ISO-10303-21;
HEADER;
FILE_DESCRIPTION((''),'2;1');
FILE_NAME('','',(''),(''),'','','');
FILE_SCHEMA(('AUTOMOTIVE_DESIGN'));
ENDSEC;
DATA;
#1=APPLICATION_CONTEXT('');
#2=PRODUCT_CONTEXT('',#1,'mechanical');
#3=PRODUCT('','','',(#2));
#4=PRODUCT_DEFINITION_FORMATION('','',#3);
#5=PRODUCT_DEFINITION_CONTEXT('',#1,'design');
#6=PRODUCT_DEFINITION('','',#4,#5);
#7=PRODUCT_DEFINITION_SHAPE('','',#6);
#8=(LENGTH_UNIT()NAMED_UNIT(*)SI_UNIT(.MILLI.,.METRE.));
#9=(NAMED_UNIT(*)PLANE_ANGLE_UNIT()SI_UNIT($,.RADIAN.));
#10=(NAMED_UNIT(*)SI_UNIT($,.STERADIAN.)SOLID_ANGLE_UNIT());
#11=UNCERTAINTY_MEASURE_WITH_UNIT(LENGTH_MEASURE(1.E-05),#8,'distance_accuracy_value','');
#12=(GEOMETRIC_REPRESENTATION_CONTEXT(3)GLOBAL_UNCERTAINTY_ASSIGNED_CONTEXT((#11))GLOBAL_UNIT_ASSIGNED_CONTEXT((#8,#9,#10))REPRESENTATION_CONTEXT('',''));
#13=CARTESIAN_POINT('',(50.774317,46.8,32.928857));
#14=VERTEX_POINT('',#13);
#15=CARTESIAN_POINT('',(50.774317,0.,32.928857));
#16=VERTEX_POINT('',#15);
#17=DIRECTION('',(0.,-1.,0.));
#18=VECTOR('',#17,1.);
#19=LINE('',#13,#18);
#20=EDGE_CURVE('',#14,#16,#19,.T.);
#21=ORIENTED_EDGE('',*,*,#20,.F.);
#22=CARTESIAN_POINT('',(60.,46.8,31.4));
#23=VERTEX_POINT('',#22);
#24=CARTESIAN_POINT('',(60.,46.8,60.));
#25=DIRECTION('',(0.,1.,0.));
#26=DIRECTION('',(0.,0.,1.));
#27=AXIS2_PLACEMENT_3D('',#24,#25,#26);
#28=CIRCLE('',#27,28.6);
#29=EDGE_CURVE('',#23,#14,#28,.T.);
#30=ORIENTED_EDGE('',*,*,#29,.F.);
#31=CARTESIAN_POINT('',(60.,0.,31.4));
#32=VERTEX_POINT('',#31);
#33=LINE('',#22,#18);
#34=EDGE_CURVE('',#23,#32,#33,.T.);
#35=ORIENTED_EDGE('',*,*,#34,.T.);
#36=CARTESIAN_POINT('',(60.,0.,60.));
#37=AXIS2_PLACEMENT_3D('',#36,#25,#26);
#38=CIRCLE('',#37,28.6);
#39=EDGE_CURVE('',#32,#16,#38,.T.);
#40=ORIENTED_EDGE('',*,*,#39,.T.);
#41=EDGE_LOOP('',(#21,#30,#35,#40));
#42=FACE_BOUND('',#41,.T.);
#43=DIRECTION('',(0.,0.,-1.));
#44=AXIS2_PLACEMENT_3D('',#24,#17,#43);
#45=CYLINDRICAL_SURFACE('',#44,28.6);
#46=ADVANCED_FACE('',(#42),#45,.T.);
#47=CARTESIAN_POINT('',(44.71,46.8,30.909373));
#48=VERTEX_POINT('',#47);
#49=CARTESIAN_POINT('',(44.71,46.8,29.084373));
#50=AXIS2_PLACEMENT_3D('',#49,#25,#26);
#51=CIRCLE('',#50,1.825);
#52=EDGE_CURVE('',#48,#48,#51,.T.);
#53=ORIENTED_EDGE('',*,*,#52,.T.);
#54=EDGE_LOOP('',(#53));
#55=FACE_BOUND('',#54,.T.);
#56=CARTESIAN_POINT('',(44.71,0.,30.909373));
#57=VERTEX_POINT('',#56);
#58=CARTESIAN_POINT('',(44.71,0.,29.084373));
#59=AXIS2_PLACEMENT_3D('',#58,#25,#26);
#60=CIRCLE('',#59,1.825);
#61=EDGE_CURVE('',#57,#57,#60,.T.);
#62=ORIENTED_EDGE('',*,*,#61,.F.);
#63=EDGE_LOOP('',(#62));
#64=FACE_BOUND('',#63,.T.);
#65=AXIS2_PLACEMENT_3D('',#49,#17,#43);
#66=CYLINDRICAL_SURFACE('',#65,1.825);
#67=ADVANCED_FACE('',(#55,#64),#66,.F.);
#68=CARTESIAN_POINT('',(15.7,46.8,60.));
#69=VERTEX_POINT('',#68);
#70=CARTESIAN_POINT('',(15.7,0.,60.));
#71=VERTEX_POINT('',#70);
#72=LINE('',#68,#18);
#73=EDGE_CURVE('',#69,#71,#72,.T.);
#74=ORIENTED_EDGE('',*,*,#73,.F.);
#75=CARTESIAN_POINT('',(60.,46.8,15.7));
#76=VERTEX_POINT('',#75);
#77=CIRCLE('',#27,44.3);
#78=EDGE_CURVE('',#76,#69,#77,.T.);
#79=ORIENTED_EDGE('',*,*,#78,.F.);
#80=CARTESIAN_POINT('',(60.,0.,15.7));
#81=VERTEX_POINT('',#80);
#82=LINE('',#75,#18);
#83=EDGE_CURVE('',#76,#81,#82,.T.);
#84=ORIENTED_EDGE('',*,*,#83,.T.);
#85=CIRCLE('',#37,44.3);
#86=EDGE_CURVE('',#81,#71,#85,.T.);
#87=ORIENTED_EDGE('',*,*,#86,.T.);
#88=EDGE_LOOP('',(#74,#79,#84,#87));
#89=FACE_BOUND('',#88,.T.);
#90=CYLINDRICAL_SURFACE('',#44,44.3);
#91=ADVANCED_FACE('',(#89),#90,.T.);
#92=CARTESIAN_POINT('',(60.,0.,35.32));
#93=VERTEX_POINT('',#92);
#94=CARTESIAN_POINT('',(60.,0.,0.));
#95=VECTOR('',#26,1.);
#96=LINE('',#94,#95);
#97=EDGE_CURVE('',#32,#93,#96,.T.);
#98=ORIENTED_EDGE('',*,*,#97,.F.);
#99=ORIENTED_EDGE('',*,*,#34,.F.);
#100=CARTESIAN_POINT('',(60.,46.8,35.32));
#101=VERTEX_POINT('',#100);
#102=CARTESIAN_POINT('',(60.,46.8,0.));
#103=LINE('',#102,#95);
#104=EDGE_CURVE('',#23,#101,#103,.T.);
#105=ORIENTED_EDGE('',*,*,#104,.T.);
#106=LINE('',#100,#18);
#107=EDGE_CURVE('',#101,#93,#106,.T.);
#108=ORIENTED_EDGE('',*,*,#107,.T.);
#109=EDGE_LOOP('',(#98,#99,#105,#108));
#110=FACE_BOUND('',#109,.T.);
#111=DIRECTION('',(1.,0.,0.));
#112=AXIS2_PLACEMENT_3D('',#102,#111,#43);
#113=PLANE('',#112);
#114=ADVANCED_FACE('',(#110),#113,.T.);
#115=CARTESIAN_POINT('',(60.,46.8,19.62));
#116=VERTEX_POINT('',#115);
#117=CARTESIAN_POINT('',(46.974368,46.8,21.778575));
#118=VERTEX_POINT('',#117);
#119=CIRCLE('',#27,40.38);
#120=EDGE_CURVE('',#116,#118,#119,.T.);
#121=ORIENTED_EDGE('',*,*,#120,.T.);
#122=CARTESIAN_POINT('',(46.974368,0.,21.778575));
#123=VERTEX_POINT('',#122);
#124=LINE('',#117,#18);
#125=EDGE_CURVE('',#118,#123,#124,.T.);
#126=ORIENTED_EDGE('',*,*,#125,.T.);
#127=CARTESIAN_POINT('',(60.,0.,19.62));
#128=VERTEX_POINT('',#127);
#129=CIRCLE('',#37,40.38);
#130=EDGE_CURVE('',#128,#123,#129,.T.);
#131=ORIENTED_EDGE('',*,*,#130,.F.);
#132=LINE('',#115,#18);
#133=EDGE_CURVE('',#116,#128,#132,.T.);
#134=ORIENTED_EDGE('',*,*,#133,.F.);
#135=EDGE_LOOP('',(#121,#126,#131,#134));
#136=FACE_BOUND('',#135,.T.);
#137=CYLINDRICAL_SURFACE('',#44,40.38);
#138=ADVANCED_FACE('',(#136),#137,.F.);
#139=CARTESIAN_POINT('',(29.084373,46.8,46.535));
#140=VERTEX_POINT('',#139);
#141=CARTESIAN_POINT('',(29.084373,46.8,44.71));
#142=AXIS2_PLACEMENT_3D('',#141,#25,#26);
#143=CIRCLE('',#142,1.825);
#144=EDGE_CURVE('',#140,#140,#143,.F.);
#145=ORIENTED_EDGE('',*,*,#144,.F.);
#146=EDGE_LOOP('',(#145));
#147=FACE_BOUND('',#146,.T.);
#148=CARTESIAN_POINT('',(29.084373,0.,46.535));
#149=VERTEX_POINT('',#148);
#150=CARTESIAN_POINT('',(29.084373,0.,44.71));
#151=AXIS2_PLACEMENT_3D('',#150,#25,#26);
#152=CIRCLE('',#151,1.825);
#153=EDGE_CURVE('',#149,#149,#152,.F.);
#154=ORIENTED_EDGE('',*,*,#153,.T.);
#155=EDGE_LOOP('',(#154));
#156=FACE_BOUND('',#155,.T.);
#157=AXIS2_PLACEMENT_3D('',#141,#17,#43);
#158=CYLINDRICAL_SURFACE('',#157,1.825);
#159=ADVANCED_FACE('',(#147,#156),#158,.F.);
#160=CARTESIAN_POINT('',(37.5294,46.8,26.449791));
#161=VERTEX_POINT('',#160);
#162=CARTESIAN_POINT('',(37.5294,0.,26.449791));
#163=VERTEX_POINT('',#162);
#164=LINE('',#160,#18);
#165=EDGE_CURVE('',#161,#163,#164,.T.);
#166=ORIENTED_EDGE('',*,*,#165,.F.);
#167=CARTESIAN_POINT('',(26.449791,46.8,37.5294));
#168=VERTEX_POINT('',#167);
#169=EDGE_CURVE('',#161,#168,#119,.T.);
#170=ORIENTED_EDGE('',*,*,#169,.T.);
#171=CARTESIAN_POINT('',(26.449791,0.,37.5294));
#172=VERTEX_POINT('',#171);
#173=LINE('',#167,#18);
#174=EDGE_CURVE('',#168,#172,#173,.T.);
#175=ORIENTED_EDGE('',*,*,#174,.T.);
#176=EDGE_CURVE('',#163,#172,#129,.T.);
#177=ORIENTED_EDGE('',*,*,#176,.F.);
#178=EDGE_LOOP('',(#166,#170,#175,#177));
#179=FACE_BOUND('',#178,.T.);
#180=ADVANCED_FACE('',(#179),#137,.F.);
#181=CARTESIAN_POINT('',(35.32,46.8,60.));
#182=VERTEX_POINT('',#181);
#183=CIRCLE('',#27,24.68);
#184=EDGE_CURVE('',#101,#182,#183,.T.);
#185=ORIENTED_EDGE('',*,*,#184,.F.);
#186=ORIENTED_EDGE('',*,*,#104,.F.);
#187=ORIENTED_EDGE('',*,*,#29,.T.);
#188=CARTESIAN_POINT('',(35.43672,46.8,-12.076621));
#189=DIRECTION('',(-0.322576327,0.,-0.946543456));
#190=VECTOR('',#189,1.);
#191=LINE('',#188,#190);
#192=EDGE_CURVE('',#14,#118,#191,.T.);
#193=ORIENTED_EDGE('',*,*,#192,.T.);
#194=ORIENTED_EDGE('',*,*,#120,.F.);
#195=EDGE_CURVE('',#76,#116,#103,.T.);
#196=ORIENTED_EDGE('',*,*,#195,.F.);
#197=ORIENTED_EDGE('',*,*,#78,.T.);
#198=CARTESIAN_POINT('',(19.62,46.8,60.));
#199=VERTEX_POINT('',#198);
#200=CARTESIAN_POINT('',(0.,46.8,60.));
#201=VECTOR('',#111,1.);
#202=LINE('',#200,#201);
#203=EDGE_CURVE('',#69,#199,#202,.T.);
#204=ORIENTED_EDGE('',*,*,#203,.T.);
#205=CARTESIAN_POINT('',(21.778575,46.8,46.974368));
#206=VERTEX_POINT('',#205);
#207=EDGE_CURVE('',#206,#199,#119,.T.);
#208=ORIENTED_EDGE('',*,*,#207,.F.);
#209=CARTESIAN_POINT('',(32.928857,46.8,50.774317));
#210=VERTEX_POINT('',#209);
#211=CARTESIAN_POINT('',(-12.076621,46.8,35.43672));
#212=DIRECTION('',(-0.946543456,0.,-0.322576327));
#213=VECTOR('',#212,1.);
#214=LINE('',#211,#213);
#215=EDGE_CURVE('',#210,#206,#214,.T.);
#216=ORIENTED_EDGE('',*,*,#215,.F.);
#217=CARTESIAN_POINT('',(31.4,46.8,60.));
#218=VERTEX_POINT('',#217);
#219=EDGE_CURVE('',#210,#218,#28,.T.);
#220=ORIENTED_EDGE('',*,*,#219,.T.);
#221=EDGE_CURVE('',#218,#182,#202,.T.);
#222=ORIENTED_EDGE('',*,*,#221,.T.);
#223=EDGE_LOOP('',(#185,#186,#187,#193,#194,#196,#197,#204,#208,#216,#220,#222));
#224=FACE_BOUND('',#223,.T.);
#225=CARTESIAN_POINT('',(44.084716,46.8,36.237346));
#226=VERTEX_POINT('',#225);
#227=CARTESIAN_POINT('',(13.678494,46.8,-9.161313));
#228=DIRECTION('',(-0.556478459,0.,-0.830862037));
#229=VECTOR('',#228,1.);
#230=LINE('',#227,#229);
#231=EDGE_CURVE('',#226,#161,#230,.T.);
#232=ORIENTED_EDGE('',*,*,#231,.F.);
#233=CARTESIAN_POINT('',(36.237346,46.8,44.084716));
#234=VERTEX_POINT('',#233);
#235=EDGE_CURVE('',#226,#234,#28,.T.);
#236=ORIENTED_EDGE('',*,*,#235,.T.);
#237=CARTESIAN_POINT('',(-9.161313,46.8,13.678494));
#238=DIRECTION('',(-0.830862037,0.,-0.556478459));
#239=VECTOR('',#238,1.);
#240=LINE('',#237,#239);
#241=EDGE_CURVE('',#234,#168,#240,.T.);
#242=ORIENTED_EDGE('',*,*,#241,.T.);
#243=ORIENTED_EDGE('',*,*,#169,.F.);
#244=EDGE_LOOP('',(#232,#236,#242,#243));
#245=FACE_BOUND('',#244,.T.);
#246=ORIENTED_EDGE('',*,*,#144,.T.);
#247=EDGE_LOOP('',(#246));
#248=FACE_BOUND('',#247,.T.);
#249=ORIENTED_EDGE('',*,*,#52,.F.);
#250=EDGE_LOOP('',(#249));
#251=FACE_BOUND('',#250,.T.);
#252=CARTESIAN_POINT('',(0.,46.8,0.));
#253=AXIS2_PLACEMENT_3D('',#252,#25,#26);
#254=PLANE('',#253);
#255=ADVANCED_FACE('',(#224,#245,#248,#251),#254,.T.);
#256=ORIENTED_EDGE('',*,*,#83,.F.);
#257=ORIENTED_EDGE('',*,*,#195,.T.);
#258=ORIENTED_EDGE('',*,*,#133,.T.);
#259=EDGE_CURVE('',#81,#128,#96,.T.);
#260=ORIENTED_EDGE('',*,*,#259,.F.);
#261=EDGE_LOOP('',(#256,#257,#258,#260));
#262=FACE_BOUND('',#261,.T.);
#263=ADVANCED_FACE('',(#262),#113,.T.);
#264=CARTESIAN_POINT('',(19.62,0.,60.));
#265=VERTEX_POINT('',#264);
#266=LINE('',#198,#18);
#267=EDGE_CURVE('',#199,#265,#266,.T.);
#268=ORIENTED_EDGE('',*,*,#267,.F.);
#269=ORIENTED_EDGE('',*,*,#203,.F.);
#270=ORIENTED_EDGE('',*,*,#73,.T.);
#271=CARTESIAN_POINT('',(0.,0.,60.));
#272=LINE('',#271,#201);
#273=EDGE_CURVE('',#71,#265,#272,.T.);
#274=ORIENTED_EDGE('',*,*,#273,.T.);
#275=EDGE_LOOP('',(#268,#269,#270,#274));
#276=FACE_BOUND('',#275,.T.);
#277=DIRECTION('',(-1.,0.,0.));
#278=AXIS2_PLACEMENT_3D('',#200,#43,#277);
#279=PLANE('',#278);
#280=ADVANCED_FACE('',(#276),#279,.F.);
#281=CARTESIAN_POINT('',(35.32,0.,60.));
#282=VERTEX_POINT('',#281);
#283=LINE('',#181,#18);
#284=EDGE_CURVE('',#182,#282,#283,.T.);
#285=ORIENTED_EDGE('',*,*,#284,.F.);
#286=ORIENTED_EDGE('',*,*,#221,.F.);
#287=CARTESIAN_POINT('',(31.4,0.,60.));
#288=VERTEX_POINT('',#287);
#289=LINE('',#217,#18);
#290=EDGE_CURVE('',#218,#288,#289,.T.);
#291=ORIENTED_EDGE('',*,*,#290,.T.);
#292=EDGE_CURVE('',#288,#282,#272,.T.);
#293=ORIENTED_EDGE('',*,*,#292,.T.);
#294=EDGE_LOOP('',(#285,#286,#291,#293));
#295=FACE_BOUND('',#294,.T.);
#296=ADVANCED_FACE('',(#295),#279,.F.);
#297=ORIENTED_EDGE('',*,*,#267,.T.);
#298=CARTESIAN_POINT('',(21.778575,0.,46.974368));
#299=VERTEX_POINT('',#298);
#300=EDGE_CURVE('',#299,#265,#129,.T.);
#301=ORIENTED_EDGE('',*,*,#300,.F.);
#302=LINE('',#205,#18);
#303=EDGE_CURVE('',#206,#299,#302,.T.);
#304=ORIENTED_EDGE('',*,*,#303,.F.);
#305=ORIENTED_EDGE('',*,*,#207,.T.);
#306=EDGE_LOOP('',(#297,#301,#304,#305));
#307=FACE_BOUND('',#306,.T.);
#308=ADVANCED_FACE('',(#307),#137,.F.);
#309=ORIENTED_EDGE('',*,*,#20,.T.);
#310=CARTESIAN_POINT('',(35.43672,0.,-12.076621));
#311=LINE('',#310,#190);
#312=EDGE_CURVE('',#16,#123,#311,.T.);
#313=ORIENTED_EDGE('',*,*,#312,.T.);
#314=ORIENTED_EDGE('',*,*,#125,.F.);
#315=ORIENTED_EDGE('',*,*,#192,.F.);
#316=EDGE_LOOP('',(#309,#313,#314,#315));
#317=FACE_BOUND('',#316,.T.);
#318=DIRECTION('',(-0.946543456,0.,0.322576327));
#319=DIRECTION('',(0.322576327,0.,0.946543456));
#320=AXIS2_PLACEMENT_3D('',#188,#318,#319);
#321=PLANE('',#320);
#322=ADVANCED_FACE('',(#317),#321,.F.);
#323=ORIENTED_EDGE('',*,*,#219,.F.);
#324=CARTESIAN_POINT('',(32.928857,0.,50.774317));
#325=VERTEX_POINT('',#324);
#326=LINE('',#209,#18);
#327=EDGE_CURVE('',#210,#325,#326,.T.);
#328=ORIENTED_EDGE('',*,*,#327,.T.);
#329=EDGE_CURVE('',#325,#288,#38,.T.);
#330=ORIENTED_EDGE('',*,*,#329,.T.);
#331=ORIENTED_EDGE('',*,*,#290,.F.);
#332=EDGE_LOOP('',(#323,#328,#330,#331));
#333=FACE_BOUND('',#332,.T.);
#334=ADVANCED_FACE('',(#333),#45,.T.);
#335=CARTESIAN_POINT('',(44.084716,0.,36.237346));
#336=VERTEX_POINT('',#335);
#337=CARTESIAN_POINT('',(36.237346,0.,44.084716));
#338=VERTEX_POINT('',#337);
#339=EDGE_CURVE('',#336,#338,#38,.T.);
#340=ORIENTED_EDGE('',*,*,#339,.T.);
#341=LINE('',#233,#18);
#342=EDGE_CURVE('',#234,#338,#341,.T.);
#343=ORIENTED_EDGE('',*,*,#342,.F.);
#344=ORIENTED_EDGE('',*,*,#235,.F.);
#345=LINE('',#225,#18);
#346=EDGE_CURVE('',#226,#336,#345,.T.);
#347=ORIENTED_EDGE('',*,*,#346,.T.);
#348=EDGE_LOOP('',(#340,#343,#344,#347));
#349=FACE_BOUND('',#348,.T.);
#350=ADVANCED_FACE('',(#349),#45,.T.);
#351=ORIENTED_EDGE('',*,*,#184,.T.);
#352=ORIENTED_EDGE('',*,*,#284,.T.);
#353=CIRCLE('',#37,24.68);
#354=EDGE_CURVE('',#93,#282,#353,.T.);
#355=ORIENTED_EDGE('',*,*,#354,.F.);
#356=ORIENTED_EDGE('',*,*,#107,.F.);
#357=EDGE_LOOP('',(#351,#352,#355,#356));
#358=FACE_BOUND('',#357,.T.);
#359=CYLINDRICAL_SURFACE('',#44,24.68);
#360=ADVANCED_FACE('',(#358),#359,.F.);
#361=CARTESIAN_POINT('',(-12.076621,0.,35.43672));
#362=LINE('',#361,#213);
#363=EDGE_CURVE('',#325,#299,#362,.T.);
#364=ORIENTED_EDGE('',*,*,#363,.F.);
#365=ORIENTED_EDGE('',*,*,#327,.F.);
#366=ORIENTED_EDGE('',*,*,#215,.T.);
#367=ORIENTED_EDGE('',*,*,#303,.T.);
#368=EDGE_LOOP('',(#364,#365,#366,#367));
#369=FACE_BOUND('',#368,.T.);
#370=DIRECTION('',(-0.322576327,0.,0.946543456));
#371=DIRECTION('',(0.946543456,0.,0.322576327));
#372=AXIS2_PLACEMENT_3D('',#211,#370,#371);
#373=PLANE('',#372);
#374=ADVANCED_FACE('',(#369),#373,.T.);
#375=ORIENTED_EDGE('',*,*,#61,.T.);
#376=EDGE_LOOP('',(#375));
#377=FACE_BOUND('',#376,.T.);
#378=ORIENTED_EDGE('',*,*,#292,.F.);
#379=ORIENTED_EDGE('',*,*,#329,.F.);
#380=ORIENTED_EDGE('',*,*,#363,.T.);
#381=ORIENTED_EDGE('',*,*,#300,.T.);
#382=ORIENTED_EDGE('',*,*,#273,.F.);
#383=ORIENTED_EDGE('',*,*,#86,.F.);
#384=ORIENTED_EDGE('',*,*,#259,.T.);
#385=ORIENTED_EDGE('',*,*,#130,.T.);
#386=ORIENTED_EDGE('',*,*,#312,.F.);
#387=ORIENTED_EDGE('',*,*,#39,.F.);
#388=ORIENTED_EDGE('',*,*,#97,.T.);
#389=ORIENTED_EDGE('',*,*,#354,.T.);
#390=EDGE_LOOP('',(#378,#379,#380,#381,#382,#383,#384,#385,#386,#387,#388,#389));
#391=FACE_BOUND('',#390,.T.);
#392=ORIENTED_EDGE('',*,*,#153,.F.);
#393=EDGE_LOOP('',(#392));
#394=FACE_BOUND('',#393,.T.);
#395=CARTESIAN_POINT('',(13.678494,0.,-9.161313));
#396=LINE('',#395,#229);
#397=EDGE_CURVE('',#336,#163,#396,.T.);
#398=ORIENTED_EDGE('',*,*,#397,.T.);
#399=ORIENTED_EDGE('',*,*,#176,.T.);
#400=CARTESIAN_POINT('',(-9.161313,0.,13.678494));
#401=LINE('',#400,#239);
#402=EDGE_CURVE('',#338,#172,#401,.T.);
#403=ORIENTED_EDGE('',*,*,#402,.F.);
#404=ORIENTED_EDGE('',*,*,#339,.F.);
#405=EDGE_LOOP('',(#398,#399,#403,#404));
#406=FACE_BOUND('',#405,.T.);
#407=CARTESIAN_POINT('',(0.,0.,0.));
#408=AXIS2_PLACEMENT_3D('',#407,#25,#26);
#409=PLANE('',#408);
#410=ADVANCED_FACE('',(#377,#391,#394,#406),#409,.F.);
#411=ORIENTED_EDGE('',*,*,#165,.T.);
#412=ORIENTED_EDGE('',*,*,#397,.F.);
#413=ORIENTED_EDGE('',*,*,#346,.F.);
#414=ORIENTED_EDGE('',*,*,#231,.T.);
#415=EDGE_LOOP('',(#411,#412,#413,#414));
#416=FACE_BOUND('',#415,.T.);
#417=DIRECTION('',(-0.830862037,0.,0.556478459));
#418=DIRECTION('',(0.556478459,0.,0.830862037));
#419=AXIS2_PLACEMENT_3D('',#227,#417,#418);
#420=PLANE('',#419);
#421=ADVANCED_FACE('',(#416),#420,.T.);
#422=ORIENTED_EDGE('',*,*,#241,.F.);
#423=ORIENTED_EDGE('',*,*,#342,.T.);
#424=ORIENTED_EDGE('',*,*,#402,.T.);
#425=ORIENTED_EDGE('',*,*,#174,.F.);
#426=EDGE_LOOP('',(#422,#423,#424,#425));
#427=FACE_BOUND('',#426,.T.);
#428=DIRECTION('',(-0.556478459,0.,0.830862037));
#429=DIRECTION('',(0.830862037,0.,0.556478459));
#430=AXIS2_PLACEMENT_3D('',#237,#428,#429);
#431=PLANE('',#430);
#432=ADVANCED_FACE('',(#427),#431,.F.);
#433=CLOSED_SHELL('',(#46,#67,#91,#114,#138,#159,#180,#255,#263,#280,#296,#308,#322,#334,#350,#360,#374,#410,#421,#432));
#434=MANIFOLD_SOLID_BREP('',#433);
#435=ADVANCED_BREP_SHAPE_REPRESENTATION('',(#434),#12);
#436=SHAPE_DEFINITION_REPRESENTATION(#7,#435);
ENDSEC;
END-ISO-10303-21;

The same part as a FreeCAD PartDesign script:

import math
import FreeCAD as App
import Part
import Sketcher

V = App.Vector

doc = App.newDocument("Part")
body = doc.addObject("PartDesign::Body", "Body")

sketch1 = body.newObject("Sketcher::SketchObject", "Sketch")
sketch1.AttachmentSupport = (doc.getObject("XZ_Plane"), [""])
sketch1.MapMode = "FlatFace"
sketch1.addGeometry([
    Part.LineSegment(V(31.4, 60, 0), V(35.32, 60, 0)),
    Part.ArcOfCircle(Part.Circle(V(60, 60, 0), V(0, 0, 1), 24.68), math.radians(180), math.radians(270)),
    Part.LineSegment(V(60, 35.32, 0), V(60, 31.4, 0)),
    Part.ArcOfCircle(Part.Circle(V(60, 60, 0), V(0, 0, 1), 28.6), math.radians(-108.818802), math.radians(-90)),
    Part.LineSegment(V(50.774317, 32.928857, 0), V(46.974368, 21.778575, 0)),
    Part.ArcOfCircle(Part.Circle(V(60, 60, 0), V(0, 0, 1), 40.38), math.radians(-108.818802), math.radians(-90)),
    Part.LineSegment(V(60, 19.62, 0), V(60, 15.7, 0)),
    Part.ArcOfCircle(Part.Circle(V(60, 60, 0), V(0, 0, 1), 44.3), math.radians(180), math.radians(270)),
    Part.LineSegment(V(15.7, 60, 0), V(19.62, 60, 0)),
    Part.ArcOfCircle(Part.Circle(V(60, 60, 0), V(0, 0, 1), 40.38), math.radians(-180), math.radians(-161.181198)),
    Part.LineSegment(V(21.778575, 46.974368, 0), V(32.928857, 50.774317, 0)),
    Part.ArcOfCircle(Part.Circle(V(60, 60, 0), V(0, 0, 1), 28.6), math.radians(180), math.radians(198.818802)),
    Part.Circle(V(29.084373, 44.71, 0), V(0, 0, 1), 1.825),
    Part.ArcOfCircle(Part.Circle(V(60, 60, 0), V(0, 0, 1), 40.38), math.radians(-146.187392), math.radians(-123.812608)),
    Part.LineSegment(V(37.5294, 26.449791, 0), V(44.084716, 36.237346, 0)),
    Part.ArcOfCircle(Part.Circle(V(60, 60, 0), V(0, 0, 1), 28.6), math.radians(-146.187392), math.radians(-123.812608)),
    Part.LineSegment(V(36.237346, 44.084716, 0), V(26.449791, 37.5294, 0)),
    Part.Circle(V(44.71, 29.084373, 0), V(0, 0, 1), 1.825),
], False)
sketch1.addConstraint([
    Sketcher.Constraint("Coincident", 0, 2, 1, 1),
    Sketcher.Constraint("Coincident", 1, 2, 2, 1),
    Sketcher.Constraint("Coincident", 2, 2, 3, 2),
    Sketcher.Constraint("Coincident", 3, 1, 4, 1),
    Sketcher.Constraint("Coincident", 4, 2, 5, 1),
    Sketcher.Constraint("Coincident", 5, 2, 6, 1),
    Sketcher.Constraint("Coincident", 6, 2, 7, 2),
    Sketcher.Constraint("Coincident", 7, 1, 8, 1),
    Sketcher.Constraint("Coincident", 8, 2, 9, 1),
    Sketcher.Constraint("Coincident", 9, 2, 10, 1),
    Sketcher.Constraint("Coincident", 10, 2, 11, 2),
    Sketcher.Constraint("Coincident", 11, 1, 0, 1),
    Sketcher.Constraint("Coincident", 13, 2, 14, 1),
    Sketcher.Constraint("Coincident", 14, 2, 15, 2),
    Sketcher.Constraint("Coincident", 15, 1, 16, 1),
    Sketcher.Constraint("Coincident", 16, 2, 13, 1),
    Sketcher.Constraint("Horizontal", 0),
    Sketcher.Constraint("Vertical", 2),
    Sketcher.Constraint("Vertical", 6),
    Sketcher.Constraint("Horizontal", 8),
    Sketcher.Constraint("Coincident", 3, 3, 1, 3),
    Sketcher.Constraint("Coincident", 5, 3, 1, 3),
    Sketcher.Constraint("Coincident", 7, 3, 1, 3),
    Sketcher.Constraint("Coincident", 9, 3, 1, 3),
    Sketcher.Constraint("Coincident", 11, 3, 1, 3),
    Sketcher.Constraint("Coincident", 13, 3, 1, 3),
    Sketcher.Constraint("Coincident", 15, 3, 1, 3),
    Sketcher.Constraint("Equal", 5, 9),
    Sketcher.Constraint("Equal", 3, 11),
    Sketcher.Constraint("Equal", 9, 13),
    Sketcher.Constraint("Equal", 11, 15),
    Sketcher.Constraint("Equal", 12, 17),
    Sketcher.Constraint("Horizontal", 15, 3, 0, 2),
    Sketcher.Constraint("Horizontal", 0, 2, 7, 1),
    Sketcher.Constraint("Vertical", 15, 3, 1, 2),
    Sketcher.Constraint("Vertical", 2, 2, 5, 2),
    Sketcher.Constraint("Equal", 0, 8),
    Sketcher.Constraint("Radius", 3, 28.6),
    Sketcher.Constraint("Radius", 7, 44.3),
    Sketcher.Constraint("Diameter", 12, 3.65),
    Sketcher.Constraint("Radius", 1, 24.68),
    Sketcher.Constraint("DistanceX", -1, 1, 1, 3, 60.0),
    Sketcher.Constraint("DistanceY", -1, 1, 1, 3, 60.0),
    Sketcher.Constraint("DistanceY", -1, 1, 12, 3, 44.71),
    Sketcher.Constraint("DistanceX", -1, 1, 17, 3, 44.71),
    Sketcher.Constraint("DistanceX", -1, 1, 13, 2, 37.5294),
    Sketcher.Constraint("DistanceY", -1, 1, 16, 2, 37.5294),
    Sketcher.Constraint("DistanceX", 14, 2, 3, 1, 6.689601),
    Sketcher.Constraint("DistanceY", 15, 1, 10, 2, 6.689601),
    Sketcher.Constraint("DistanceX", 4, 2, 3, 1, 3.799949),
    Sketcher.Constraint("DistanceX", 9, 2, 10, 2, 11.150282),
    Sketcher.Constraint("DistanceY", 13, 2, 17, 3, 2.634582),
    Sketcher.Constraint("DistanceX", 13, 2, 4, 2, 9.444968),
    Sketcher.Constraint("DistanceX", 10, 2, 15, 1, 3.308489),
    Sketcher.Constraint("DistanceX", 16, 2, 12, 3, 2.634582),
])
pad1 = body.newObject("PartDesign::Pad", "Pad")
pad1.Profile = sketch1
pad1.Length = 46.8
pad1.Reversed = True

doc.recompute()
